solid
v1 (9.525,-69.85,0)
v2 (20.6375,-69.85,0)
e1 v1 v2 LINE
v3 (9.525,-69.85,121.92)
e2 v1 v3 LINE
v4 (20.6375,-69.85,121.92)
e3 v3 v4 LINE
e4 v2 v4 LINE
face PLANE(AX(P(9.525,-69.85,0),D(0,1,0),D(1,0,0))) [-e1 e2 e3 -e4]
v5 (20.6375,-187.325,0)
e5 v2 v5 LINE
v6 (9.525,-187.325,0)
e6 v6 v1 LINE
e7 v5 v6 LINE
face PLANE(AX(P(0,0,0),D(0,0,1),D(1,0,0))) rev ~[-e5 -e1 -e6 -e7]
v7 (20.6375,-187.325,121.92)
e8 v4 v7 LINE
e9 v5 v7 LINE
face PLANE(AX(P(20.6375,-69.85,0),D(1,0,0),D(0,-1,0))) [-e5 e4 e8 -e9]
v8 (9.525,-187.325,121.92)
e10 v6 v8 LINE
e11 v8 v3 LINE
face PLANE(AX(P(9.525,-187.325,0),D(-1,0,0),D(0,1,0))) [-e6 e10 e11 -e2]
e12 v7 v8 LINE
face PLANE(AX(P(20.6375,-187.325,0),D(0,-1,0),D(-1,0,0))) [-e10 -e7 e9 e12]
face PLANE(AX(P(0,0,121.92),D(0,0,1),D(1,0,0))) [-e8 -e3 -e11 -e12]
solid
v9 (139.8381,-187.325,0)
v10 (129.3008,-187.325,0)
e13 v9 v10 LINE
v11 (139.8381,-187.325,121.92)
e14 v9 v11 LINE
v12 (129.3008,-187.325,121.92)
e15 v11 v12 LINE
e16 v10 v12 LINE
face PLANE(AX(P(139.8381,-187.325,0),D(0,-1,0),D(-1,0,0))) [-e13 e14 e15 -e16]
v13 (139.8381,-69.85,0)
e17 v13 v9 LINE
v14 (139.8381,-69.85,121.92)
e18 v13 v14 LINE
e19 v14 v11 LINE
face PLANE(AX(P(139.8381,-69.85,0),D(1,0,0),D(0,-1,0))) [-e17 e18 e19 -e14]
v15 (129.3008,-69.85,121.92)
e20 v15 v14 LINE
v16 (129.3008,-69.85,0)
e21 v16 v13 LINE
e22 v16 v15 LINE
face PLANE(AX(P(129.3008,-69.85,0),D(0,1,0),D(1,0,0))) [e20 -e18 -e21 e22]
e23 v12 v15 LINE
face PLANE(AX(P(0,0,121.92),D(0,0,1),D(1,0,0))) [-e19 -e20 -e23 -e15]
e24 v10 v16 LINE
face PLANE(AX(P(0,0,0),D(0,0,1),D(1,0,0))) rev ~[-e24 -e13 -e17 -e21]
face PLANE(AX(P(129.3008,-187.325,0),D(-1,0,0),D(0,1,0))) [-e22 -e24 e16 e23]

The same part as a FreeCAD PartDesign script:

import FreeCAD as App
import Part
import Sketcher
Q = App.Units.Quantity

doc = App.newDocument("Part")
params = doc.addObject("Spreadsheet::Sheet", "Params")
for row, (alias, value) in enumerate([
    ("sketch1_width", "0.4375 in"),
    ("sketch1_height", "4.625 in"),
    ("pad1_length", "4.8 in"),
], start=1):
    params.set(f"A{row}", alias)
    params.set(f"B{row}", "=" + value)
    params.setAlias(f"B{row}", alias)

body = doc.addObject("PartDesign::Body", "Body")
body.AllowCompound = True

# Sketch on XY plane
sketch1 = body.newObject("Sketcher::SketchObject", "Sketch")
sketch1.AttachmentSupport = (doc.getObject("XY_Plane"), [""])
sketch1.MapMode = "FlatFace"
sketch1.addGeometry(Part.LineSegment(App.Vector(129, -187, 0), App.Vector(140, -187, 0)), False)
sketch1.addGeometry(Part.LineSegment(App.Vector(140, -187, 0), App.Vector(140, -70, 0)), False)
sketch1.addGeometry(Part.LineSegment(App.Vector(140, -70, 0), App.Vector(129, -70, 0)), False)
sketch1.addGeometry(Part.LineSegment(App.Vector(129, -70, 0), App.Vector(129, -187, 0)), False)
sketch1.addGeometry(Part.LineSegment(App.Vector(10, -187, 0), App.Vector(21, -187, 0)), False)
sketch1.addGeometry(Part.LineSegment(App.Vector(21, -187, 0), App.Vector(21, -70, 0)), False)
sketch1.addGeometry(Part.LineSegment(App.Vector(21, -70, 0), App.Vector(10, -70, 0)), False)
sketch1.addGeometry(Part.LineSegment(App.Vector(10, -70, 0), App.Vector(10, -187, 0)), False)
sketch1.addConstraint(Sketcher.Constraint("Coincident", 0, 2, 1, 1))
sketch1.addConstraint(Sketcher.Constraint("Coincident", 1, 2, 2, 1))
sketch1.addConstraint(Sketcher.Constraint("Coincident", 2, 2, 3, 1))
sketch1.addConstraint(Sketcher.Constraint("Coincident", 3, 2, 0, 1))
sketch1.addConstraint(Sketcher.Constraint("Coincident", 4, 2, 5, 1))
sketch1.addConstraint(Sketcher.Constraint("Coincident", 5, 2, 6, 1))
sketch1.addConstraint(Sketcher.Constraint("Coincident", 6, 2, 7, 1))
sketch1.addConstraint(Sketcher.Constraint("Coincident", 7, 2, 4, 1))
sketch1.addConstraint(Sketcher.Constraint("Horizontal", 0))
sketch1.addConstraint(Sketcher.Constraint("Vertical", 1))
sketch1.addConstraint(Sketcher.Constraint("Horizontal", 2))
sketch1.addConstraint(Sketcher.Constraint("Vertical", 3))
sketch1.addConstraint(Sketcher.Constraint("Horizontal", 4))
sketch1.addConstraint(Sketcher.Constraint("Vertical", 5))
sketch1.addConstraint(Sketcher.Constraint("Horizontal", 6))
sketch1.addConstraint(Sketcher.Constraint("Vertical", 7))
sketch1.addConstraint(Sketcher.Constraint("Horizontal", 3, 2, 4, 2))
sketch1.addConstraint(Sketcher.Constraint("Horizontal", 2, 2, 5, 2))
sketch1.addConstraint(Sketcher.Constraint("DistanceX", 4, 1, 4, 2, Q("0.4375 in")))
sketch1.addConstraint(Sketcher.Constraint("DistanceY", 1, 1, 1, 2, Q("4.625 in")))
sketch1.addConstraint(Sketcher.Constraint("DistanceY", 1, 2, -1, 1, Q("2.75 in")))
sketch1.addConstraint(Sketcher.Constraint("DistanceX", -1, 1, 4, 2, Q("0.8125 in")))
sketch1.addConstraint(Sketcher.Constraint("DistanceX", 0, 1, 0, 2, 10.5373))
sketch1.addConstraint(Sketcher.Constraint("DistanceX", -1, 1, 0, 2, 139.838))
sketch1.setExpression("Constraints[18]", "Params.sketch1_width")
sketch1.setExpression("Constraints[19]", "Params.sketch1_height")
pad1 = body.newObject("PartDesign::Pad", "Pad")
pad1.Profile = sketch1
pad1.setExpression("Length", "Params.pad1_length")

doc.recompute()
